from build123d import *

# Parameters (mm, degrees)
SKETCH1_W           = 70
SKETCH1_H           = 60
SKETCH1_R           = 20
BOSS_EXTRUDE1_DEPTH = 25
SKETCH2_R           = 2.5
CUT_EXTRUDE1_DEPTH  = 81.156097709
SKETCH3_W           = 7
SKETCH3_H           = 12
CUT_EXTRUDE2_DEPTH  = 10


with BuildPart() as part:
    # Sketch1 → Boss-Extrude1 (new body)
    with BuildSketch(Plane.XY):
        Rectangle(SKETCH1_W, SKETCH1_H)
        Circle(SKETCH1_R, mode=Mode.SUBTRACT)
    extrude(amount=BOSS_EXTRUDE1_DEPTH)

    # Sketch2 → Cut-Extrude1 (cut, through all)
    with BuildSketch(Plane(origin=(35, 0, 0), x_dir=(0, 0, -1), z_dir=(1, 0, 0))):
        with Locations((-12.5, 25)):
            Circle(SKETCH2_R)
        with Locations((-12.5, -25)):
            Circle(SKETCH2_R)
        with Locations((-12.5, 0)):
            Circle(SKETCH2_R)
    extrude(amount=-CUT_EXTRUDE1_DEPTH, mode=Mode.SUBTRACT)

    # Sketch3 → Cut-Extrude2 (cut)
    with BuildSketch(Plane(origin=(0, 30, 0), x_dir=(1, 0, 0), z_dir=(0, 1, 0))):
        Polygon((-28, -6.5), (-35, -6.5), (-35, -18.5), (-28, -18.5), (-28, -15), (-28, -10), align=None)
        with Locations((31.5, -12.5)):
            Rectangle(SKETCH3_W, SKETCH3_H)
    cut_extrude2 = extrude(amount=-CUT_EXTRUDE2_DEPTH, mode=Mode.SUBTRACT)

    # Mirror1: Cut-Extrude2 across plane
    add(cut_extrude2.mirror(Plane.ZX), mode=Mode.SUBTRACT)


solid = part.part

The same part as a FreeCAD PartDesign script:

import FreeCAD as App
import Part
import Sketcher
from FreeCAD import Vector
Q = App.Units.Quantity


def add_polygon(sketch, points):
    """Adds a closed chain of lines whose ends are joined by coincident constraints."""
    first, n = sketch.GeometryCount, len(points)
    for a, b in zip(points, points[1:] + points[:1]):
        sketch.addGeometry(Part.LineSegment(App.Vector(*a, 0), App.Vector(*b, 0)), False)
    for i in range(n):
        sketch.addConstraint(Sketcher.Constraint("Coincident", first + i, 2, first + (i + 1) % n, 1))

doc = App.newDocument("Part")
params = doc.addObject("Spreadsheet::Sheet", "Params")
for row, (alias, value) in enumerate([
    ("sketch1_diameter", "40 mm"),
    ("sketch1_width", "70 mm"),
    ("sketch1_height", "60 mm"),
    ("pad1_length", "25 mm"),
    ("sketch2_diameter", "5 mm"),
    ("sketch3_width", "7 mm"),
    ("sketch3_height", "12 mm"),
    ("pocket2_length", "10 mm"),
], start=1):
    params.set(f"A{row}", alias)
    params.set(f"B{row}", "=" + value)
    params.setAlias(f"B{row}", alias)

body = doc.addObject("PartDesign::Body", "Body")

sketch1 = doc.addObject("Sketcher::SketchObject", "Sketch")
body.addObject(sketch1)
sketch1.AttachmentSupport = (doc.XY_Plane, [""])
sketch1.MapMode = "FlatFace"
add_polygon(sketch1, [(-35, 30), (-35, -30), (35, -30), (35, 30)])
sketch1.addGeometry(Part.Circle(Vector(0, 0, 0), Vector(0, 0, 1), 20), False)
sketch1.addConstraint([
    Sketcher.Constraint("Vertical", 0),
    Sketcher.Constraint("Horizontal", 1),
    Sketcher.Constraint("Vertical", 2),
    Sketcher.Constraint("Horizontal", 3),
    Sketcher.Constraint("Coincident", 4, 3, -1, 1),
    Sketcher.Constraint("Symmetric", 0, 2, 2, 2, -1, 1),
    Sketcher.Constraint("Diameter", 4, Q("40 mm")),
    Sketcher.Constraint("DistanceX", 1, 1, 1, 2, Q("70 mm")),
    Sketcher.Constraint("DistanceY", 0, 2, 0, 1, Q("60 mm")),
])
sketch1.setExpression("Constraints[10]", "Params.sketch1_diameter")
sketch1.setExpression("Constraints[11]", "Params.sketch1_width")
sketch1.setExpression("Constraints[12]", "Params.sketch1_height")
pad1 = doc.addObject("PartDesign::Pad", "Pad")
body.addObject(pad1)
pad1.Profile = sketch1
pad1.setExpression("Length", "Params.pad1_length")

sketch2 = doc.addObject("Sketcher::SketchObject", "Sketch001")
body.addObject(sketch2)
sketch2.AttachmentSupport = (doc.YZ_Plane, [""])
sketch2.MapMode = "FlatFace"
sketch2.AttachmentOffset = App.Placement(Vector(0, 0, 35), App.Rotation())
sketch2.addGeometry([
    Part.Circle(Vector(25, 12.5, 0), Vector(0, 0, 1), 2.5),
    Part.Circle(Vector(-25, 12.5, 0), Vector(0, 0, 1), 2.5),
    Part.Circle(Vector(0, 12.5, 0), Vector(0, 0, 1), 2.5),
], False)
sketch2.addConstraint([
    Sketcher.Constraint("Equal", 0, 1),
    Sketcher.Constraint("Equal", 1, 2),
    Sketcher.Constraint("Symmetric", 0, 3, 1, 3, -2),
    Sketcher.Constraint("PointOnObject", 2, 3, -2),
    Sketcher.Constraint("Horizontal", 1, 3, 2, 3),
    Sketcher.Constraint("Diameter", 0, Q("5 mm")),
    Sketcher.Constraint("DistanceX", -1, 1, 0, 3, Q("25 mm")),
    Sketcher.Constraint("DistanceY", -1, 1, 0, 3, Q("12.5 mm")),
])
sketch2.setExpression("Constraints[5]", "Params.sketch2_diameter")
pocket1 = doc.addObject("PartDesign::Pocket", "Pocket")
body.addObject(pocket1)
pocket1.Profile = sketch2
pocket1.Type = "ThroughAll"

sketch3 = doc.addObject("Sketcher::SketchObject", "Sketch002")
body.addObject(sketch3)
sketch3.AttachmentSupport = (doc.XZ_Plane, [""])
sketch3.MapMode = "FlatFace"
sketch3.AttachmentOffset = App.Placement(Vector(0, 0, -30), App.Rotation())
add_polygon(sketch3, [(-28, 6.5), (-35, 6.5), (-35, 18.5), (-28, 18.5)])
add_polygon(sketch3, [(28, 6.5), (28, 18.5), (35, 18.5), (35, 6.5)])
sketch3.addConstraint([
    Sketcher.Constraint("Horizontal", 0),
    Sketcher.Constraint("Vertical", 1),
    Sketcher.Constraint("Horizontal", 2),
    Sketcher.Constraint("Vertical", 3),
    Sketcher.Constraint("Vertical", 4),
    Sketcher.Constraint("Horizontal", 5),
    Sketcher.Constraint("Vertical", 6),
    Sketcher.Constraint("Horizontal", 7),
    Sketcher.Constraint("Symmetric", 2, 2, 4, 2, -2),
    Sketcher.Constraint("Symmetric", 0, 2, 6, 2, -2),
    Sketcher.Constraint("DistanceX", 0, 2, 0, 1, Q("7 mm")),
    Sketcher.Constraint("DistanceY", 1, 1, 1, 2, Q("12 mm")),
    Sketcher.Constraint("DistanceX", 0, 2, -1, 1, Q("35 mm")),
    Sketcher.Constraint("DistanceY", -1, 1, 0, 2, Q("6.5 mm")),
])
sketch3.setExpression("Constraints[18]", "Params.sketch3_width")
sketch3.setExpression("Constraints[19]", "Params.sketch3_height")
pocket2 = doc.addObject("PartDesign::Pocket", "Pocket001")
body.addObject(pocket2)
pocket2.Profile = sketch3
pocket2.setExpression("Length", "Params.pocket2_length")
pocket2.Reversed = True
doc.recompute()

mirrored = doc.addObject("PartDesign::Mirrored", "Mirrored")
body.addObject(mirrored)
mirrored.Originals = [pocket2]
mirrored.MirrorPlane = (doc.XZ_Plane, [""])
body.Tip = mirrored

doc.recompute()
